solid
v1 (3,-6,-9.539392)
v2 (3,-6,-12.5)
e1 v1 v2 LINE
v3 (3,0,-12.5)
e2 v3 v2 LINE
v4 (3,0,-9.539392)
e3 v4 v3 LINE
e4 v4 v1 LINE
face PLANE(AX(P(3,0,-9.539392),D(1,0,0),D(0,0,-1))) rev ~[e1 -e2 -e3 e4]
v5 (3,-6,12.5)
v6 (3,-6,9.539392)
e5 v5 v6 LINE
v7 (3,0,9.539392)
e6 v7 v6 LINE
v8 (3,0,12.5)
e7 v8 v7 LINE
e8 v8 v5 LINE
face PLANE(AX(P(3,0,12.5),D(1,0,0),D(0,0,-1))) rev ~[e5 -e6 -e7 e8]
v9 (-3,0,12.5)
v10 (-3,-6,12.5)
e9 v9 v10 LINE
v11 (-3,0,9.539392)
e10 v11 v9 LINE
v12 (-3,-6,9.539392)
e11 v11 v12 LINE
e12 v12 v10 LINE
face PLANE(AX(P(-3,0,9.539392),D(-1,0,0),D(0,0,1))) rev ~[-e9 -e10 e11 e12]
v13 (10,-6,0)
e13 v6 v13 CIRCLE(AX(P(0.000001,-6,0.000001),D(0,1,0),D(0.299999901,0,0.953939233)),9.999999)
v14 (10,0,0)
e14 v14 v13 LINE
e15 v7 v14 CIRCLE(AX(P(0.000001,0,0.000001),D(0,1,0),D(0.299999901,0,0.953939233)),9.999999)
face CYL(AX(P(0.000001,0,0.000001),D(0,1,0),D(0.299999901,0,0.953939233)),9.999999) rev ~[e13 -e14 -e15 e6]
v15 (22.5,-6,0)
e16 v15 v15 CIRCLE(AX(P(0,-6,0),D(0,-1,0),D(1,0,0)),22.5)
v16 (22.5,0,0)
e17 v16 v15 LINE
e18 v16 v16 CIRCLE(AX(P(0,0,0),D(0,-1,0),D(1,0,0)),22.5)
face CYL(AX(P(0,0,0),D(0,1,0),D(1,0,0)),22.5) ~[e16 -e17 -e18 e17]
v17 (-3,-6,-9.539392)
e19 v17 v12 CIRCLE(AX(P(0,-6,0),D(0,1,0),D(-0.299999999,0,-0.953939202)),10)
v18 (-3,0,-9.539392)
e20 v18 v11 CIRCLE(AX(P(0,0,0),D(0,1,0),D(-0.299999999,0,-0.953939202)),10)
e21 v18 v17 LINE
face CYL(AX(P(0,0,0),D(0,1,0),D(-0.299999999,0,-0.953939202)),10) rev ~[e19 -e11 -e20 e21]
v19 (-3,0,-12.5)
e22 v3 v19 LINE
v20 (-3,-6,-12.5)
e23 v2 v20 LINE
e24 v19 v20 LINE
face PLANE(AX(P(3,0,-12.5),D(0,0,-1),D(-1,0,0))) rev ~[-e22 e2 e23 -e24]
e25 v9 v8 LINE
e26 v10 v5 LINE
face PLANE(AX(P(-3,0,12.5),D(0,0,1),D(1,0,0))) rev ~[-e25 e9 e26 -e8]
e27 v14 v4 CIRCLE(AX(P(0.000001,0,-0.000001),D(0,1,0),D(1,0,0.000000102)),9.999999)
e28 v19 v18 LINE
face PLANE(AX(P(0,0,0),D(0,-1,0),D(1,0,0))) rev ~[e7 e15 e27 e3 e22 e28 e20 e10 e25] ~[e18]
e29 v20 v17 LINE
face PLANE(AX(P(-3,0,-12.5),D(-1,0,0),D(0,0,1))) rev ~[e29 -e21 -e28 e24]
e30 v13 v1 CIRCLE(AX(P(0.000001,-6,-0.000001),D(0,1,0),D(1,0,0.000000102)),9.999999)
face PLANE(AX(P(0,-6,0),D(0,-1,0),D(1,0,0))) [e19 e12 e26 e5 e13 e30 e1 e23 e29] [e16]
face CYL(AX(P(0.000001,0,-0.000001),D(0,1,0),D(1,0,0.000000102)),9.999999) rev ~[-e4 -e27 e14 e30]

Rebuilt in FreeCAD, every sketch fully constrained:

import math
import FreeCAD as App
import Part
import Sketcher
from FreeCAD import Vector

doc = App.newDocument("Part")
body = doc.addObject("PartDesign::Body", "Body")

# Sketch on XZ plane
sketch1 = body.newObject("Sketcher::SketchObject", "Sketch")
sketch1.AttachmentSupport = (doc.getObject("XZ_Plane"), [""])
sketch1.MapMode = "FlatFace"
sketch1.addGeometry([
    Part.Circle(Vector(0, 0, 0), Vector(0, 0, 1), 22.5),  # 0
    Part.LineSegment(Vector(3, 12.5, 0), Vector(3, 9.5, 0)),  # 1
    Part.ArcOfCircle(Part.Circle(Vector(0, 0, 0), Vector(0, 0, 1), 10), math.radians(0), math.radians(73)),  # 2
    Part.ArcOfCircle(Part.Circle(Vector(0, 0, 0), Vector(0, 0, 1), 10), math.radians(-73), math.radians(0)),  # 3
    Part.LineSegment(Vector(3, -9.5, 0), Vector(3, -12.5, 0)),  # 4
    Part.LineSegment(Vector(3, -12.5, 0), Vector(-3, -12.5, 0)),  # 5
    Part.LineSegment(Vector(-3, -12.5, 0), Vector(-3, -9.5, 0)),  # 6
    Part.ArcOfCircle(Part.Circle(Vector(0, 0, 0), Vector(0, 0, 1), 10), math.radians(107), math.radians(253)),  # 7
    Part.LineSegment(Vector(-3, 9.5, 0), Vector(-3, 12.5, 0)),  # 8
    Part.LineSegment(Vector(-3, 12.5, 0), Vector(3, 12.5, 0)),  # 9
], False)
sketch1.addConstraint([
    Sketcher.Constraint("Coincident", 1, 2, 2, 2),
    Sketcher.Constraint("Tangent", 2, 1, 3, 2),
    Sketcher.Constraint("Coincident", 3, 1, 4, 1),
    Sketcher.Constraint("Coincident", 4, 2, 5, 1),
    Sketcher.Constraint("Coincident", 5, 2, 6, 1),
    Sketcher.Constraint("Coincident", 6, 2, 7, 2),
    Sketcher.Constraint("Coincident", 7, 1, 8, 1),
    Sketcher.Constraint("Coincident", 8, 2, 9, 1),
    Sketcher.Constraint("Coincident", 9, 2, 1, 1),
    Sketcher.Constraint("Vertical", 1),
    Sketcher.Constraint("Vertical", 4),
    Sketcher.Constraint("Horizontal", 5),
    Sketcher.Constraint("Vertical", 6),
    Sketcher.Constraint("Vertical", 8),
    Sketcher.Constraint("Horizontal", 9),
    Sketcher.Constraint("Coincident", 0, 3, -1, 1),
    Sketcher.Constraint("Coincident", 2, 3, -1, 1),
    Sketcher.Constraint("Coincident", 7, 3, -1, 1),
    Sketcher.Constraint("Equal", 2, 3),
    Sketcher.Constraint("Equal", 3, 7),
    Sketcher.Constraint("Symmetric", 4, 2, 8, 2, -1, 1),
    Sketcher.Constraint("PointOnObject", 2, 1, -1),
    Sketcher.Constraint("Horizontal", 3, 1, 6, 2),
    Sketcher.Constraint("Horizontal", 1, 2, 7, 1),
    Sketcher.Constraint("Diameter", 0, 45.0),
    Sketcher.Constraint("Radius", 2, 9.999999),
    Sketcher.Constraint("DistanceX", 5, 2, 5, 1, 6.0),
    Sketcher.Constraint("DistanceY", 4, 2, -1, 1, 12.5),
])
pad1 = body.newObject("PartDesign::Pad", "Pad")
pad1.Profile = sketch1
pad1.Length = 6

doc.recompute()
